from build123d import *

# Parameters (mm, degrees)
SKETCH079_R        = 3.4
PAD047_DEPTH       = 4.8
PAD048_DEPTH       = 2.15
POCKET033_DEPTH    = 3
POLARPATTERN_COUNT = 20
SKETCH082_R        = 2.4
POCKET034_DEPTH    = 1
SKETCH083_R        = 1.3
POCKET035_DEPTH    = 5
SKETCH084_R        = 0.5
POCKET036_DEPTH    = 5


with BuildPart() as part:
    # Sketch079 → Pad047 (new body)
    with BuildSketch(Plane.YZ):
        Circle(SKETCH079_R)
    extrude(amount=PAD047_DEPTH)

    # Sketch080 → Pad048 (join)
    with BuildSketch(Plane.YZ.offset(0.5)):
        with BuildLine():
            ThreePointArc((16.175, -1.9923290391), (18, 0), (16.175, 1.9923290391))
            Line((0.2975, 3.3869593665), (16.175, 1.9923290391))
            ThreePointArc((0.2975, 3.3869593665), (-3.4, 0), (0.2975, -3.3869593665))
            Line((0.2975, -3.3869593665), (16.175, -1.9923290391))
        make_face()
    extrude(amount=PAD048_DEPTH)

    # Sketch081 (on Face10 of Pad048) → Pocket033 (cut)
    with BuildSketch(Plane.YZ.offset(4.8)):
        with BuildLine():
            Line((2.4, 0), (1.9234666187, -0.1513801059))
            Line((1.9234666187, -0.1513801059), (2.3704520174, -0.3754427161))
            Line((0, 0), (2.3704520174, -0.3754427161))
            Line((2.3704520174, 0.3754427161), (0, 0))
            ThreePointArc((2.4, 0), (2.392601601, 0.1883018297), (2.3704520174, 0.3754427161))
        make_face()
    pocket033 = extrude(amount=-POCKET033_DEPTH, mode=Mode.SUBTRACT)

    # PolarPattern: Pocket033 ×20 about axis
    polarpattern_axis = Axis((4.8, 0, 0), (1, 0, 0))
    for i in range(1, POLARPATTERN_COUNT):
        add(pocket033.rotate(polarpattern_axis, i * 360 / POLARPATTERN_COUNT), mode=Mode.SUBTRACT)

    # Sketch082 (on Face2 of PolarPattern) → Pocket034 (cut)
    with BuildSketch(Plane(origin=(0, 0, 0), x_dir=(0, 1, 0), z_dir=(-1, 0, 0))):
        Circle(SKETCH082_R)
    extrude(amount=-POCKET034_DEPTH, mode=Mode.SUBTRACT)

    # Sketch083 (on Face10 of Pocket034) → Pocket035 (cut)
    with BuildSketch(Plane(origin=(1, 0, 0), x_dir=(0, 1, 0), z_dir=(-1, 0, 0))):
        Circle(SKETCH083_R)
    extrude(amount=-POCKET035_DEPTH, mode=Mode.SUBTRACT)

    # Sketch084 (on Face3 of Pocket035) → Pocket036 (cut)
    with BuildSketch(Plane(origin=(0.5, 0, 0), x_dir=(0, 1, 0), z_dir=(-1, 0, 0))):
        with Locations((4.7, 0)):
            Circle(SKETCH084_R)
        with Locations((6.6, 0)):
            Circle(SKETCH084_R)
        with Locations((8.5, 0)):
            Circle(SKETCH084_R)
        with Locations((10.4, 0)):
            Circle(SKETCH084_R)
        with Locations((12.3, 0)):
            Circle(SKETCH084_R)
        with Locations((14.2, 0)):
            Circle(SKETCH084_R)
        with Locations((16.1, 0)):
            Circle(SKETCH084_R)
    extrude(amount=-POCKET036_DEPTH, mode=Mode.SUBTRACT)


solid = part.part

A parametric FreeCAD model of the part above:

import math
import FreeCAD as App
import Part
import Sketcher
from FreeCAD import Vector
Q = App.Units.Quantity

doc = App.newDocument("Part")
body = doc.addObject("PartDesign::Body", "Body")

# Sketch on YZ plane
sketch1 = doc.addObject("Sketcher::SketchObject", "Sketch")
body.addObject(sketch1)
sketch1.AttachmentSupport = (doc.YZ_Plane, [""])
sketch1.MapMode = "FlatFace"
sketch1.addGeometry(Part.Circle(Vector(0, 0, 0), Vector(0, 0, 1), 3.4), False)
sketch1.addConstraint([
    Sketcher.Constraint("Coincident", 0, 3, -1, 1),
    Sketcher.Constraint("Diameter", 0, 6.8),
])
pad1 = doc.addObject("PartDesign::Pad", "Pad")
body.addObject(pad1)
pad1.Profile = sketch1
pad1.Length = 4.8

# Sketch on YZ plane
sketch2 = doc.addObject("Sketcher::SketchObject", "Sketch001")
body.addObject(sketch2)
sketch2.AttachmentSupport = (doc.YZ_Plane, [""])
sketch2.MapMode = "FlatFace"
sketch2.AttachmentOffset = App.Placement(Vector(0, 0, 0.5), App.Rotation())
sketch2.addGeometry([
    Part.ArcOfCircle(Part.Circle(Vector(16, 0, 0), Vector(0, 0, 1), 2), math.radians(-85), math.radians(85)),
    Part.LineSegment(Vector(16.2, 2, 0), Vector(0.3, 3.4, 0)),
    Part.ArcOfCircle(Part.Circle(Vector(0, 0, 0), Vector(0, 0, 1), 3.4), math.radians(85), math.radians(275)),
    Part.LineSegment(Vector(0.3, -3.4, 0), Vector(16.2, -2, 0)),
], False)
sketch2.addConstraint([
    Sketcher.Constraint("Tangent", 0, 2, 1, 1),
    Sketcher.Constraint("Tangent", 1, 2, 2, 1),
    Sketcher.Constraint("Tangent", 2, 2, 3, 1),
    Sketcher.Constraint("Tangent", 3, 2, 0, 1),
    Sketcher.Constraint("Coincident", 2, 3, -1, 1),
    Sketcher.Constraint("PointOnObject", 0, 3, -1),
    Sketcher.Constraint("Radius", 0, 2.0),
    Sketcher.Constraint("Radius", 2, 3.4),
    Sketcher.Constraint("DistanceX", -1, 1, 0, 3, 16.0),
])
pad2 = doc.addObject("PartDesign::Pad", "Pad001")
body.addObject(pad2)
pad2.Profile = sketch2
pad2.Length = 2.15

# Sketch on YZ plane
sketch3 = doc.addObject("Sketcher::SketchObject", "Sketch002")
body.addObject(sketch3)
sketch3.AttachmentSupport = (doc.YZ_Plane, [""])
sketch3.MapMode = "FlatFace"
sketch3.AttachmentOffset = App.Placement(Vector(0, 0, 4.8), App.Rotation())
sketch3.addGeometry([
    Part.LineSegment(Vector(1.92, -0.15, 0), Vector(2.4, 0, 0)),  # 0
    Part.ArcOfCircle(Part.Circle(Vector(0, 0, 0), Vector(0, 0, 1), 2.4), math.radians(0), math.radians(9)),  # 1
    Part.LineSegment(Vector(2.37, 0.38, 0), Vector(0, 0, 0)),  # 2
    Part.LineSegment(Vector(0, 0, 0), Vector(2.37, -0.38, 0)),  # 3
    Part.LineSegment(Vector(2.37, -0.38, 0), Vector(1.92, -0.15, 0)),  # 4
], False)
sketch3.addConstraint([
    Sketcher.Constraint("Coincident", 0, 2, 1, 1),
    Sketcher.Constraint("Coincident", 1, 2, 2, 1),
    Sketcher.Constraint("Coincident", 2, 2, 3, 1),
    Sketcher.Constraint("Coincident", 3, 2, 4, 1),
    Sketcher.Constraint("Coincident", 4, 2, 0, 1),
    Sketcher.Constraint("Coincident", 1, 3, -1, 1),
    Sketcher.Constraint("Coincident", 2, 2, -1, 1),
    Sketcher.Constraint("Symmetric", 1, 2, 3, 2, -1),
    Sketcher.Constraint("PointOnObject", 0, 2, -1),
    Sketcher.Constraint("Equal", 0, 4),
    Sketcher.Constraint("Radius", 1, 2.4),
    Sketcher.Constraint("Angle", 2, Q("-171 deg")),
    Sketcher.Constraint("Distance", 0, 0.5),
])
pocket1 = doc.addObject("PartDesign::Pocket", "Pocket")
body.addObject(pocket1)
pocket1.Profile = sketch3
pocket1.Length = 3
doc.recompute()

polarpattern = doc.addObject("PartDesign::PolarPattern", "PolarPattern")
body.addObject(polarpattern)
polarpattern.Originals = [pocket1]
polarpattern.Axis = (doc.X_Axis, [""])
polarpattern.Angle = 360
polarpattern.Occurrences = 20
body.Tip = polarpattern

# Sketch on YZ plane
sketch4 = doc.addObject("Sketcher::SketchObject", "Sketch003")
body.addObject(sketch4)
sketch4.AttachmentSupport = (doc.YZ_Plane, [""])
sketch4.MapMode = "FlatFace"
sketch4.addGeometry(Part.Circle(Vector(0, 0, 0), Vector(0, 0, 1), 2.4), False)
sketch4.addConstraint([
    Sketcher.Constraint("Coincident", 0, 3, -1, 1),
    Sketcher.Constraint("Diameter", 0, 4.8),
])
pocket2 = doc.addObject("PartDesign::Pocket", "Pocket001")
body.addObject(pocket2)
pocket2.Profile = sketch4
pocket2.Length = 1
pocket2.Reversed = True

# Sketch on YZ plane
sketch5 = doc.addObject("Sketcher::SketchObject", "Sketch004")
body.addObject(sketch5)
sketch5.AttachmentSupport = (doc.YZ_Plane, [""])
sketch5.MapMode = "FlatFace"
sketch5.AttachmentOffset = App.Placement(Vector(0, 0, 1), App.Rotation())
sketch5.addGeometry(Part.Circle(Vector(0, 0, 0), Vector(0, 0, 1), 1.3), False)
sketch5.addConstraint([
    Sketcher.Constraint("Coincident", 0, 3, -1, 1),
    Sketcher.Constraint("Diameter", 0, 2.6),
])
pocket3 = doc.addObject("PartDesign::Pocket", "Pocket002")
body.addObject(pocket3)
pocket3.Profile = sketch5
pocket3.Length = 5
pocket3.Reversed = True

# Sketch on YZ plane
sketch6 = doc.addObject("Sketcher::SketchObject", "Sketch005")
body.addObject(sketch6)
sketch6.AttachmentSupport = (doc.YZ_Plane, [""])
sketch6.MapMode = "FlatFace"
sketch6.AttachmentOffset = App.Placement(Vector(0, 0, 0.5), App.Rotation())
sketch6.addGeometry([
    Part.Circle(Vector(4.7, 0, 0), Vector(0, 0, 1), 0.5),  # 0
    Part.Circle(Vector(6.6, 0, 0), Vector(0, 0, 1), 0.5),  # 1
    Part.Circle(Vector(8.5, 0, 0), Vector(0, 0, 1), 0.5),  # 2
    Part.Circle(Vector(10.4, 0, 0), Vector(0, 0, 1), 0.5),  # 3
    Part.Circle(Vector(12.3, 0, 0), Vector(0, 0, 1), 0.5),  # 4
    Part.Circle(Vector(14.2, 0, 0), Vector(0, 0, 1), 0.5),  # 5
    Part.Circle(Vector(16.1, 0, 0), Vector(0, 0, 1), 0.5),  # 6
], False)
sketch6.addConstraint([
    Sketcher.Constraint("Equal", 0, 1),
    Sketcher.Constraint("Equal", 1, 2),
    Sketcher.Constraint("Equal", 2, 3),
    Sketcher.Constraint("Equal", 3, 4),
    Sketcher.Constraint("Equal", 4, 5),
    Sketcher.Constraint("Equal", 5, 6),
    Sketcher.Constraint("PointOnObject", 0, 3, -1),
    Sketcher.Constraint("PointOnObject", 1, 3, -1),
    Sketcher.Constraint("PointOnObject", 2, 3, -1),
    Sketcher.Constraint("PointOnObject", 3, 3, -1),
    Sketcher.Constraint("PointOnObject", 4, 3, -1),
    Sketcher.Constraint("PointOnObject", 5, 3, -1),
    Sketcher.Constraint("PointOnObject", 6, 3, -1),
    Sketcher.Constraint("Diameter", 0, 1.0),
    Sketcher.Constraint("DistanceX", -1, 1, 0, 3, 4.7),
    Sketcher.Constraint("DistanceX", -1, 1, 1, 3, 6.6),
    Sketcher.Constraint("DistanceX", -1, 1, 2, 3, 8.5),
    Sketcher.Constraint("DistanceX", -1, 1, 3, 3, 10.4),
    Sketcher.Constraint("DistanceX", -1, 1, 4, 3, 12.3),
    Sketcher.Constraint("DistanceX", -1, 1, 5, 3, 14.2),
    Sketcher.Constraint("DistanceX", -1, 1, 6, 3, 16.1),
])
pocket4 = doc.addObject("PartDesign::Pocket", "Pocket003")
body.addObject(pocket4)
pocket4.Profile = sketch6
pocket4.Length = 5
pocket4.Reversed = True

doc.recompute()
